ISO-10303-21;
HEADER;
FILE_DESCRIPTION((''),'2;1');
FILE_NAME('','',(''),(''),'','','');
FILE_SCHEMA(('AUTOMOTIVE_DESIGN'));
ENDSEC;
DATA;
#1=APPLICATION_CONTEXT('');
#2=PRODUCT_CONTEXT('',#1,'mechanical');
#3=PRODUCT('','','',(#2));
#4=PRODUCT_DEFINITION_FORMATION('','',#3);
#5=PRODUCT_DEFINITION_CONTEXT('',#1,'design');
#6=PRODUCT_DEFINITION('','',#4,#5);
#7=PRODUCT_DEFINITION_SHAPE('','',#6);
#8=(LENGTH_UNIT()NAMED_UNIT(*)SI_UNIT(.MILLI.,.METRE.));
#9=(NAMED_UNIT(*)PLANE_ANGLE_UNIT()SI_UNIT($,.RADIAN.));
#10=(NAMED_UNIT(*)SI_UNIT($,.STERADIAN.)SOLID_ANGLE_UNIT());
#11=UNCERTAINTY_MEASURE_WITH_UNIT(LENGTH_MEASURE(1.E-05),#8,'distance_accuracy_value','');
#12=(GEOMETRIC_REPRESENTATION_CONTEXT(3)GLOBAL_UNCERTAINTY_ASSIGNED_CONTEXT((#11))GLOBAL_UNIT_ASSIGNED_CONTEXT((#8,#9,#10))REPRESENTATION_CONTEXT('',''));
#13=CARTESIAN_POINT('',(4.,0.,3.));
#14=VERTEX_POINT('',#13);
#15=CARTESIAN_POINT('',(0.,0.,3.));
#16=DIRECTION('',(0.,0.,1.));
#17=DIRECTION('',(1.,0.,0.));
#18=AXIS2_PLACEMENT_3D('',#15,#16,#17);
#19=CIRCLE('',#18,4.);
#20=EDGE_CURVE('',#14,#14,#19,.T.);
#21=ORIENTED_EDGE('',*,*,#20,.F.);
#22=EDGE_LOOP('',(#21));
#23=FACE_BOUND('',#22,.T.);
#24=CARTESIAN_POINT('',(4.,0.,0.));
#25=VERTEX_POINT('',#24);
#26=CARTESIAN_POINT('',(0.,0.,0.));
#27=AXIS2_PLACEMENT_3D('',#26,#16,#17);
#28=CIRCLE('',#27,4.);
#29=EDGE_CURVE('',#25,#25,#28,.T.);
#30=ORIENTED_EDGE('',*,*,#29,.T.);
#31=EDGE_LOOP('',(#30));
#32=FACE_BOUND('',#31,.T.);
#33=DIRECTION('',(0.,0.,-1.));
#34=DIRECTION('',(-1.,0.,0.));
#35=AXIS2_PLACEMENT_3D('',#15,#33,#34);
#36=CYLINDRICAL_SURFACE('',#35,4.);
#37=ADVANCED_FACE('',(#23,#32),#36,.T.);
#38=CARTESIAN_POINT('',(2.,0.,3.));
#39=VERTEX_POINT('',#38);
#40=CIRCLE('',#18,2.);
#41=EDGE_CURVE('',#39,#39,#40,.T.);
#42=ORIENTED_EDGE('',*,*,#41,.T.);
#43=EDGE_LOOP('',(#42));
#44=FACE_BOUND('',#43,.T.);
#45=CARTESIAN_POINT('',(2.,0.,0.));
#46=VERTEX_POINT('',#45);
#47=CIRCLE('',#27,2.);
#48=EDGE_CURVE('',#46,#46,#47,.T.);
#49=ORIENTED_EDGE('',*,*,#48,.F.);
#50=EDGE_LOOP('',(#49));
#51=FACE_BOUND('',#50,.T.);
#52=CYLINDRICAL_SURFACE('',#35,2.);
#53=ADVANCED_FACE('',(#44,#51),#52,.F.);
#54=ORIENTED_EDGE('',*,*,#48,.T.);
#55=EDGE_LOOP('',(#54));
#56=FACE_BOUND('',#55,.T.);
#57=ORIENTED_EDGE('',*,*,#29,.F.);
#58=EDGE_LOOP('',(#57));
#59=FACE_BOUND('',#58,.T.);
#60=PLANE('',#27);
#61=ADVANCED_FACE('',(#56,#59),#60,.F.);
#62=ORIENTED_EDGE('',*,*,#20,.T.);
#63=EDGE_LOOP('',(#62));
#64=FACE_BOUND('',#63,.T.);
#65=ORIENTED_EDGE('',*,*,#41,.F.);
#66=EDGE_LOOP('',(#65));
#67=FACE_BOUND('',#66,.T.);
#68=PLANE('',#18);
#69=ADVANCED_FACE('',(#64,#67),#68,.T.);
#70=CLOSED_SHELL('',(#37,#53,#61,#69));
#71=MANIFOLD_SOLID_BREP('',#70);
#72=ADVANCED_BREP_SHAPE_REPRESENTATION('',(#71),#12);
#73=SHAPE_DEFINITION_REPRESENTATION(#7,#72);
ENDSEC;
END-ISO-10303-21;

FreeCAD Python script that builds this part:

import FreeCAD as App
import Part
import Sketcher

V = App.Vector

doc = App.newDocument("Part")
body = doc.addObject("PartDesign::Body", "Body")

sketch1 = body.newObject("Sketcher::SketchObject", "Sketch")
sketch1.AttachmentSupport = (doc.getObject("XY_Plane"), [""])
sketch1.MapMode = "FlatFace"
sketch1.addGeometry([
    Part.Circle(V(0, 0, 0), V(0, 0, 1), 4),
    Part.Circle(V(0, 0, 0), V(0, 0, 1), 2),
], False)
sketch1.addConstraint([
    Sketcher.Constraint("Coincident", 0, 3, -1, 1),
    Sketcher.Constraint("Coincident", 1, 3, -1, 1),
    Sketcher.Constraint("Diameter", 0, 8.0),
    Sketcher.Constraint("Diameter", 1, 4.0),
])
pad1 = body.newObject("PartDesign::Pad", "Pad")
pad1.Profile = sketch1
pad1.Length = 3

doc.recompute()
